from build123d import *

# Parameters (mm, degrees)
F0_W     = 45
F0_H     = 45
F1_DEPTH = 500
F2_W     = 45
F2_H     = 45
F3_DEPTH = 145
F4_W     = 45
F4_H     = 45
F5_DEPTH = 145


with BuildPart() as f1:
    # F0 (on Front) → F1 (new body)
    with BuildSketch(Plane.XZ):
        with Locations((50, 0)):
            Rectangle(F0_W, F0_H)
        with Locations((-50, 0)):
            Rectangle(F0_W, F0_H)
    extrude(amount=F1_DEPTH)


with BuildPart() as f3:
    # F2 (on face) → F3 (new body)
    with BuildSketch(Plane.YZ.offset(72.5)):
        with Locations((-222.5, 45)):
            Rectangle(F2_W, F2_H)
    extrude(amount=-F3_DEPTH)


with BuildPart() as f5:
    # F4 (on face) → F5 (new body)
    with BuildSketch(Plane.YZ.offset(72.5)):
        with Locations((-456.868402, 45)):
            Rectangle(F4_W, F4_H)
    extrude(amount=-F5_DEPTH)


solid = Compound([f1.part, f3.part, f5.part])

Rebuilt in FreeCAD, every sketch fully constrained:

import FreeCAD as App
import Part
import Sketcher
from FreeCAD import Vector

doc = App.newDocument("Part")
body = doc.addObject("PartDesign::Body", "Body")
body.AllowCompound = True

sketch1 = body.newObject("Sketcher::SketchObject", "Sketch")
sketch1.AttachmentSupport = (doc.getObject("XZ_Plane"), [""])
sketch1.MapMode = "FlatFace"
sketch1.addGeometry([
    Part.LineSegment(Vector(27.5, 22.5, 0), Vector(27.5, -22.5, 0)),
    Part.LineSegment(Vector(27.5, -22.5, 0), Vector(72.5, -22.5, 0)),
    Part.LineSegment(Vector(72.5, -22.5, 0), Vector(72.5, 22.5, 0)),
    Part.LineSegment(Vector(72.5, 22.5, 0), Vector(27.5, 22.5, 0)),
    Part.LineSegment(Vector(-72.5, 22.5, 0), Vector(-72.5, -22.5, 0)),
    Part.LineSegment(Vector(-72.5, -22.5, 0), Vector(-27.5, -22.5, 0)),
    Part.LineSegment(Vector(-27.5, -22.5, 0), Vector(-27.5, 22.5, 0)),
    Part.LineSegment(Vector(-27.5, 22.5, 0), Vector(-72.5, 22.5, 0)),
], False)
sketch1.addConstraint([
    Sketcher.Constraint("Coincident", 0, 2, 1, 1),
    Sketcher.Constraint("Coincident", 1, 2, 2, 1),
    Sketcher.Constraint("Coincident", 2, 2, 3, 1),
    Sketcher.Constraint("Coincident", 3, 2, 0, 1),
    Sketcher.Constraint("Coincident", 4, 2, 5, 1),
    Sketcher.Constraint("Coincident", 5, 2, 6, 1),
    Sketcher.Constraint("Coincident", 6, 2, 7, 1),
    Sketcher.Constraint("Coincident", 7, 2, 4, 1),
    Sketcher.Constraint("Vertical", 0),
    Sketcher.Constraint("Horizontal", 1),
    Sketcher.Constraint("Vertical", 2),
    Sketcher.Constraint("Horizontal", 3),
    Sketcher.Constraint("Vertical", 4),
    Sketcher.Constraint("Horizontal", 5),
    Sketcher.Constraint("Vertical", 6),
    Sketcher.Constraint("Horizontal", 7),
    Sketcher.Constraint("Symmetric", 2, 2, 4, 2, -1, 1),
    Sketcher.Constraint("Symmetric", 0, 2, 6, 2, -1, 1),
    Sketcher.Constraint("Horizontal", 1, 2, 4, 2),
    Sketcher.Constraint("Equal", 7, 0),
    Sketcher.Constraint("DistanceX", 1, 1, 1, 2, 45.0),
    Sketcher.Constraint("DistanceX", 4, 2, 0, 2, 100.0),
])
pad1 = body.newObject("PartDesign::Pad", "Pad")
pad1.Profile = sketch1
pad1.Length = 500
body2 = doc.addObject("PartDesign::Body", "Body001")

sketch2 = body2.newObject("Sketcher::SketchObject", "Sketch001")
sketch2.AttachmentSupport = (doc.getObject("YZ_Plane001"), [""])
sketch2.MapMode = "FlatFace"
sketch2.AttachmentOffset = App.Placement(Vector(0, 0, 72.5), App.Rotation())
sketch2.addGeometry([
    Part.LineSegment(Vector(-245, 67.5, 0), Vector(-245, 22.5, 0)),
    Part.LineSegment(Vector(-245, 22.5, 0), Vector(-200, 22.5, 0)),
    Part.LineSegment(Vector(-200, 22.5, 0), Vector(-200, 67.5, 0)),
    Part.LineSegment(Vector(-200, 67.5, 0), Vector(-245, 67.5, 0)),
], False)
sketch2.addConstraint([
    Sketcher.Constraint("Coincident", 0, 2, 1, 1),
    Sketcher.Constraint("Coincident", 1, 2, 2, 1),
    Sketcher.Constraint("Coincident", 2, 2, 3, 1),
    Sketcher.Constraint("Coincident", 3, 2, 0, 1),
    Sketcher.Constraint("Vertical", 0),
    Sketcher.Constraint("Horizontal", 1),
    Sketcher.Constraint("Vertical", 2),
    Sketcher.Constraint("Horizontal", 3),
    Sketcher.Constraint("Equal", 3, 0),
    Sketcher.Constraint("DistanceX", 1, 1, 1, 2, 45.0),
    Sketcher.Constraint("DistanceX", 0, 2, -1, 1, 245.0),
    Sketcher.Constraint("DistanceY", -1, 1, 0, 2, 22.5),
])
pad2 = body2.newObject("PartDesign::Pad", "Pad001")
pad2.Profile = sketch2
pad2.Length = 145
pad2.Reversed = True
body3 = doc.addObject("PartDesign::Body", "Body002")

sketch3 = body3.newObject("Sketcher::SketchObject", "Sketch002")
sketch3.AttachmentSupport = (doc.getObject("YZ_Plane002"), [""])
sketch3.MapMode = "FlatFace"
sketch3.AttachmentOffset = App.Placement(Vector(0, 0, 72.5), App.Rotation())
sketch3.addGeometry([
    Part.LineSegment(Vector(-479.368402, 67.5, 0), Vector(-479.368402, 22.5, 0)),
    Part.LineSegment(Vector(-479.368402, 22.5, 0), Vector(-434.368402, 22.5, 0)),
    Part.LineSegment(Vector(-434.368402, 22.5, 0), Vector(-434.368402, 67.5, 0)),
    Part.LineSegment(Vector(-434.368402, 67.5, 0), Vector(-479.368402, 67.5, 0)),
], False)
sketch3.addConstraint([
    Sketcher.Constraint("Coincident", 0, 2, 1, 1),
    Sketcher.Constraint("Coincident", 1, 2, 2, 1),
    Sketcher.Constraint("Coincident", 2, 2, 3, 1),
    Sketcher.Constraint("Coincident", 3, 2, 0, 1),
    Sketcher.Constraint("Vertical", 0),
    Sketcher.Constraint("Horizontal", 1),
    Sketcher.Constraint("Vertical", 2),
    Sketcher.Constraint("Horizontal", 3),
    Sketcher.Constraint("Equal", 3, 0),
    Sketcher.Constraint("DistanceX", 1, 1, 1, 2, 45.0),
    Sketcher.Constraint("DistanceY", -1, 1, 0, 2, 22.5),
    Sketcher.Constraint("DistanceX", 0, 2, -1, 1, 479.368402),
])
pad3 = body3.newObject("PartDesign::Pad", "Pad002")
pad3.Profile = sketch3
pad3.Length = 145
pad3.Reversed = True

doc.recompute()
